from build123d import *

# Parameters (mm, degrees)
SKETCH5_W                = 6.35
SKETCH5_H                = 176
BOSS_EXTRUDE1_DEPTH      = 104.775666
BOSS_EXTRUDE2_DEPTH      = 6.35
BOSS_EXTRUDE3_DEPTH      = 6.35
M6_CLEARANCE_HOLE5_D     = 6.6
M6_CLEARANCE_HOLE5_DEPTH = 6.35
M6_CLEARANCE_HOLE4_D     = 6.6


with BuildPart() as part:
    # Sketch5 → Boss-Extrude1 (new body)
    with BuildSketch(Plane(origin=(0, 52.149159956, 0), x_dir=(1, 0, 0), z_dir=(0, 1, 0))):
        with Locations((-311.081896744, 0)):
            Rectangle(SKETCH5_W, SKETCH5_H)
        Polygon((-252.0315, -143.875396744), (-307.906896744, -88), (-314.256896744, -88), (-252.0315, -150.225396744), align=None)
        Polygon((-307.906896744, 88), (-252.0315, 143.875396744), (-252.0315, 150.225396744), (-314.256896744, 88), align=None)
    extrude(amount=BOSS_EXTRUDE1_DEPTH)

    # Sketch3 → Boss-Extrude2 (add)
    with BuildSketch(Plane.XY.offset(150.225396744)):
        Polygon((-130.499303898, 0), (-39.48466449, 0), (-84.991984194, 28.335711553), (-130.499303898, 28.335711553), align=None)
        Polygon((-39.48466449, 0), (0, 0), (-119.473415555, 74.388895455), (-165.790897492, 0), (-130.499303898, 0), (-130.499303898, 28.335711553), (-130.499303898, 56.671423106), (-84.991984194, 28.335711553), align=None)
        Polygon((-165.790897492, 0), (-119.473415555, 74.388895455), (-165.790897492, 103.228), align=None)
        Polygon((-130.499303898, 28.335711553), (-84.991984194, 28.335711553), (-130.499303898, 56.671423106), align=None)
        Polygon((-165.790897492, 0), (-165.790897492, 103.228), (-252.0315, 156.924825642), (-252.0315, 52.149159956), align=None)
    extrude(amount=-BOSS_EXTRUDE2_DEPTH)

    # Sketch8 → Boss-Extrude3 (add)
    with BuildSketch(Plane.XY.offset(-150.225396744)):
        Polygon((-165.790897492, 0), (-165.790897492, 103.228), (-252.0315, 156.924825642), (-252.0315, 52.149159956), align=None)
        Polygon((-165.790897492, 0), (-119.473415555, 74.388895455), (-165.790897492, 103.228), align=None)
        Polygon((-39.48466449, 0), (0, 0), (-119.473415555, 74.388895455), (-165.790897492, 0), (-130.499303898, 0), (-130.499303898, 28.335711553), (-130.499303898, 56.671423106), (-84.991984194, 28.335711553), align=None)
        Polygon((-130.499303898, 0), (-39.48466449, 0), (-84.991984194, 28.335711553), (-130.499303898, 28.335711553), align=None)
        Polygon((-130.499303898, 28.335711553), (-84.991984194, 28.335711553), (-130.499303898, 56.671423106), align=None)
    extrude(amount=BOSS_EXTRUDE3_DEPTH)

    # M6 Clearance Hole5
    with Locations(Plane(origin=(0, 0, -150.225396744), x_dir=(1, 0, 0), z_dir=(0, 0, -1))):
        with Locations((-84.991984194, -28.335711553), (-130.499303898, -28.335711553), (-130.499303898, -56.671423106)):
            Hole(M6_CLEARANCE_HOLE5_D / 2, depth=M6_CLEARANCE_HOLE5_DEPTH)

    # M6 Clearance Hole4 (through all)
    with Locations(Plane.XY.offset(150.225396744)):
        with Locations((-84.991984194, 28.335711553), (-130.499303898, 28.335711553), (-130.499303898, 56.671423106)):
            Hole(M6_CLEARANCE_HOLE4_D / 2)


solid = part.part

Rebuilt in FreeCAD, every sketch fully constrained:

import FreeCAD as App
import Part
import Sketcher

doc = App.newDocument("Part")
body = doc.addObject("PartDesign::Body", "Body")

# Sketch on XZ plane
sketch1 = doc.addObject("Sketcher::SketchObject", "Sketch")
body.addObject(sketch1)
sketch1.AttachmentSupport = (doc.XZ_Plane, [""])
sketch1.MapMode = "FlatFace"
sketch1.AttachmentOffset = App.Placement(App.Vector(0, 0, -52.14916), App.Rotation())
sketch1.addGeometry([
    Part.LineSegment(App.Vector(-314.256897, -88, 0), App.Vector(-314.256897, 88, 0)),  # 0
    Part.LineSegment(App.Vector(-314.256897, 88, 0), App.Vector(-252.0315, 150.225397, 0)),  # 1
    Part.LineSegment(App.Vector(-252.0315, 150.225397, 0), App.Vector(-252.0315, 143.875397, 0)),  # 2
    Part.LineSegment(App.Vector(-252.0315, 143.875397, 0), App.Vector(-307.906897, 88, 0)),  # 3
    Part.LineSegment(App.Vector(-307.906897, 88, 0), App.Vector(-307.906897, -88, 0)),  # 4
    Part.LineSegment(App.Vector(-307.906897, -88, 0), App.Vector(-252.0315, -143.875397, 0)),  # 5
    Part.LineSegment(App.Vector(-252.0315, -143.875397, 0), App.Vector(-252.0315, -150.225397, 0)),  # 6
    Part.LineSegment(App.Vector(-252.0315, -150.225397, 0), App.Vector(-314.256897, -88, 0)),  # 7
], False)
sketch1.addConstraint([
    Sketcher.Constraint("Coincident", 0, 2, 1, 1),
    Sketcher.Constraint("Coincident", 1, 2, 2, 1),
    Sketcher.Constraint("Coincident", 2, 2, 3, 1),
    Sketcher.Constraint("Coincident", 3, 2, 4, 1),
    Sketcher.Constraint("Coincident", 4, 2, 5, 1),
    Sketcher.Constraint("Coincident", 5, 2, 6, 1),
    Sketcher.Constraint("Coincident", 6, 2, 7, 1),
    Sketcher.Constraint("Coincident", 7, 2, 0, 1),
    Sketcher.Constraint("Vertical", 0),
    Sketcher.Constraint("Vertical", 2),
    Sketcher.Constraint("Vertical", 4),
    Sketcher.Constraint("Vertical", 6),
    Sketcher.Constraint("Symmetric", 2, 2, 5, 2, -1),
    Sketcher.Constraint("Parallel", 1, 3),
    Sketcher.Constraint("Perpendicular", 3, 5),
    Sketcher.Constraint("Parallel", 5, 7),
    Sketcher.Constraint("Horizontal", 0, 2, 3, 2),
    Sketcher.Constraint("Horizontal", 4, 2, 7, 2),
    Sketcher.Constraint("Equal", 2, 6),
    Sketcher.Constraint("DistanceY", 0, 1, 0, 2, 176.0),
    Sketcher.Constraint("Distance", 1, 88.0),
    Sketcher.Constraint("DistanceY", 2, 2, 2, 1, 6.35),
    Sketcher.Constraint("DistanceX", 1, 2, -1, 1, 252.0315),
])
pad1 = doc.addObject("PartDesign::Pad", "Pad")
body.addObject(pad1)
pad1.Profile = sketch1
pad1.Length = 104.775666
pad1.Reversed = True

# Sketch on XY plane
sketch2 = doc.addObject("Sketcher::SketchObject", "Sketch001")
body.addObject(sketch2)
sketch2.AttachmentSupport = (doc.XY_Plane, [""])
sketch2.MapMode = "FlatFace"
sketch2.AttachmentOffset = App.Placement(App.Vector(0, 0, 150.225397), App.Rotation())
sketch2.addGeometry([
    Part.LineSegment(App.Vector(0, 0, 0), App.Vector(-119.473416, 74.388895, 0)),  # 0
    Part.LineSegment(App.Vector(-119.473416, 74.388895, 0), App.Vector(-252.0315, 156.924826, 0)),  # 1
    Part.LineSegment(App.Vector(-252.0315, 156.924826, 0), App.Vector(-252.0315, 52.14916, 0)),  # 2
    Part.LineSegment(App.Vector(-252.0315, 52.14916, 0), App.Vector(-165.790897, 0, 0)),  # 3
    Part.LineSegment(App.Vector(-165.790897, 0, 0), App.Vector(0, 0, 0)),  # 4
], False)
sketch2.addConstraint([
    Sketcher.Constraint("Coincident", 0, 2, 1, 1),
    Sketcher.Constraint("Coincident", 1, 2, 2, 1),
    Sketcher.Constraint("Coincident", 2, 2, 3, 1),
    Sketcher.Constraint("Coincident", 3, 2, 4, 1),
    Sketcher.Constraint("Coincident", 4, 2, 0, 1),
    Sketcher.Constraint("Vertical", 2),
    Sketcher.Constraint("Horizontal", 4),
    Sketcher.Constraint("Coincident", 4, 2, -1, 1),
    Sketcher.Constraint("Parallel", 0, 1),
    Sketcher.Constraint("DistanceX", 1, 2, -1, 1, 252.0315),
    Sketcher.Constraint("Distance", 1, 156.153212),
    Sketcher.Constraint("DistanceX", 4, 1, 4, 2, 165.790897),
    Sketcher.Constraint("DistanceY", 2, 2, 2, 1, 104.775666),
    Sketcher.Constraint("DistanceY", -1, 1, 2, 2, 52.14916),
])
pad2 = doc.addObject("PartDesign::Pad", "Pad001")
body.addObject(pad2)
pad2.Profile = sketch2
pad2.Length = 6.35
pad2.Reversed = True

# Sketch on XY plane
sketch3 = doc.addObject("Sketcher::SketchObject", "Sketch002")
body.addObject(sketch3)
sketch3.AttachmentSupport = (doc.XY_Plane, [""])
sketch3.MapMode = "FlatFace"
sketch3.AttachmentOffset = App.Placement(App.Vector(0, 0, -150.225397), App.Rotation())
sketch3.addGeometry([
    Part.LineSegment(App.Vector(-252.0315, 156.924826, 0), App.Vector(-252.0315, 52.14916, 0)),  # 0
    Part.LineSegment(App.Vector(-252.0315, 52.14916, 0), App.Vector(-165.790897, 0, 0)),  # 1
    Part.LineSegment(App.Vector(-165.790897, 0, 0), App.Vector(0, 0, 0)),  # 2
    Part.LineSegment(App.Vector(0, 0, 0), App.Vector(-119.473416, 74.388895, 0)),  # 3
    Part.LineSegment(App.Vector(-119.473416, 74.388895, 0), App.Vector(-252.0315, 156.924826, 0)),  # 4
], False)
sketch3.addConstraint([
    Sketcher.Constraint("Coincident", 0, 2, 1, 1),
    Sketcher.Constraint("Coincident", 1, 2, 2, 1),
    Sketcher.Constraint("Coincident", 2, 2, 3, 1),
    Sketcher.Constraint("Coincident", 3, 2, 4, 1),
    Sketcher.Constraint("Coincident", 4, 2, 0, 1),
    Sketcher.Constraint("Vertical", 0),
    Sketcher.Constraint("Horizontal", 2),
    Sketcher.Constraint("Coincident", 2, 2, -1, 1),
    Sketcher.Constraint("Parallel", 3, 4),
    Sketcher.Constraint("DistanceX", 0, 2, -1, 1, 252.0315),
    Sketcher.Constraint("Distance", 4, 156.153212),
    Sketcher.Constraint("DistanceX", 2, 1, 2, 2, 165.790897),
    Sketcher.Constraint("DistanceY", 0, 2, 0, 1, 104.775666),
    Sketcher.Constraint("DistanceY", -1, 1, 0, 2, 52.14916),
])
pad3 = doc.addObject("PartDesign::Pad", "Pad002")
body.addObject(pad3)
pad3.Profile = sketch3
pad3.Length = 6.35

# Sketch on XY plane
sketch4 = doc.addObject("Sketcher::SketchObject", "Sketch003")
body.addObject(sketch4)
sketch4.AttachmentSupport = (doc.XY_Plane, [""])
sketch4.MapMode = "FlatFace"
sketch4.AttachmentOffset = App.Placement(App.Vector(0, 0, -150.225397), App.Rotation())
sketch4.addGeometry([
    Part.Circle(App.Vector(-84.991984, 28.335712, 0), App.Vector(0, 0, 1), 3.3),
    Part.Circle(App.Vector(-130.499304, 28.335712, 0), App.Vector(0, 0, 1), 3.3),
    Part.Circle(App.Vector(-130.499304, 56.671423, 0), App.Vector(0, 0, 1), 3.3),
], False)
sketch4.addConstraint([
    Sketcher.Constraint("Equal", 0, 1),
    Sketcher.Constraint("Equal", 1, 2),
    Sketcher.Constraint("Horizontal", 0, 3, 1, 3),
    Sketcher.Constraint("Vertical", 1, 3, 2, 3),
    Sketcher.Constraint("Diameter", 0, 6.6),
    Sketcher.Constraint("DistanceY", -1, 1, 0, 3, 28.335712),
    Sketcher.Constraint("DistanceX", 1, 3, 0, 3, 45.50732),
    Sketcher.Constraint("DistanceY", 1, 3, 2, 3, 28.335712),
    Sketcher.Constraint("DistanceX", 0, 3, -1, 1, 84.991984),
])
doc.recompute()
hole = doc.addObject("PartDesign::Hole", "Hole")
body.addObject(hole)
hole.Profile = sketch4
hole.ThreadType = "None"
hole.Diameter = 6.6
hole.DepthType = "Dimension"
hole.Depth = 6.35
hole.DrillPoint = "Flat"
hole.Reversed = True

# Sketch on XY plane
sketch5 = doc.addObject("Sketcher::SketchObject", "Sketch004")
body.addObject(sketch5)
sketch5.AttachmentSupport = (doc.XY_Plane, [""])
sketch5.MapMode = "FlatFace"
sketch5.AttachmentOffset = App.Placement(App.Vector(0, 0, 150.225397), App.Rotation())
sketch5.addGeometry([
    Part.Circle(App.Vector(-84.991984, 28.335712, 0), App.Vector(0, 0, 1), 3.3),
    Part.Circle(App.Vector(-130.499304, 28.335712, 0), App.Vector(0, 0, 1), 3.3),
    Part.Circle(App.Vector(-130.499304, 56.671423, 0), App.Vector(0, 0, 1), 3.3),
], False)
sketch5.addConstraint([
    Sketcher.Constraint("Equal", 0, 1),
    Sketcher.Constraint("Equal", 1, 2),
    Sketcher.Constraint("Horizontal", 0, 3, 1, 3),
    Sketcher.Constraint("Vertical", 1, 3, 2, 3),
    Sketcher.Constraint("Diameter", 0, 6.6),
    Sketcher.Constraint("DistanceY", -1, 1, 0, 3, 28.335712),
    Sketcher.Constraint("DistanceX", 1, 3, 0, 3, 45.50732),
    Sketcher.Constraint("DistanceY", 1, 3, 2, 3, 28.335712),
    Sketcher.Constraint("DistanceX", 0, 3, -1, 1, 84.991984),
])
doc.recompute()
hole2 = doc.addObject("PartDesign::Hole", "Hole001")
body.addObject(hole2)
hole2.Profile = sketch5
hole2.ThreadType = "None"
hole2.Diameter = 6.6
hole2.DepthType = "ThroughAll"

doc.recompute()
